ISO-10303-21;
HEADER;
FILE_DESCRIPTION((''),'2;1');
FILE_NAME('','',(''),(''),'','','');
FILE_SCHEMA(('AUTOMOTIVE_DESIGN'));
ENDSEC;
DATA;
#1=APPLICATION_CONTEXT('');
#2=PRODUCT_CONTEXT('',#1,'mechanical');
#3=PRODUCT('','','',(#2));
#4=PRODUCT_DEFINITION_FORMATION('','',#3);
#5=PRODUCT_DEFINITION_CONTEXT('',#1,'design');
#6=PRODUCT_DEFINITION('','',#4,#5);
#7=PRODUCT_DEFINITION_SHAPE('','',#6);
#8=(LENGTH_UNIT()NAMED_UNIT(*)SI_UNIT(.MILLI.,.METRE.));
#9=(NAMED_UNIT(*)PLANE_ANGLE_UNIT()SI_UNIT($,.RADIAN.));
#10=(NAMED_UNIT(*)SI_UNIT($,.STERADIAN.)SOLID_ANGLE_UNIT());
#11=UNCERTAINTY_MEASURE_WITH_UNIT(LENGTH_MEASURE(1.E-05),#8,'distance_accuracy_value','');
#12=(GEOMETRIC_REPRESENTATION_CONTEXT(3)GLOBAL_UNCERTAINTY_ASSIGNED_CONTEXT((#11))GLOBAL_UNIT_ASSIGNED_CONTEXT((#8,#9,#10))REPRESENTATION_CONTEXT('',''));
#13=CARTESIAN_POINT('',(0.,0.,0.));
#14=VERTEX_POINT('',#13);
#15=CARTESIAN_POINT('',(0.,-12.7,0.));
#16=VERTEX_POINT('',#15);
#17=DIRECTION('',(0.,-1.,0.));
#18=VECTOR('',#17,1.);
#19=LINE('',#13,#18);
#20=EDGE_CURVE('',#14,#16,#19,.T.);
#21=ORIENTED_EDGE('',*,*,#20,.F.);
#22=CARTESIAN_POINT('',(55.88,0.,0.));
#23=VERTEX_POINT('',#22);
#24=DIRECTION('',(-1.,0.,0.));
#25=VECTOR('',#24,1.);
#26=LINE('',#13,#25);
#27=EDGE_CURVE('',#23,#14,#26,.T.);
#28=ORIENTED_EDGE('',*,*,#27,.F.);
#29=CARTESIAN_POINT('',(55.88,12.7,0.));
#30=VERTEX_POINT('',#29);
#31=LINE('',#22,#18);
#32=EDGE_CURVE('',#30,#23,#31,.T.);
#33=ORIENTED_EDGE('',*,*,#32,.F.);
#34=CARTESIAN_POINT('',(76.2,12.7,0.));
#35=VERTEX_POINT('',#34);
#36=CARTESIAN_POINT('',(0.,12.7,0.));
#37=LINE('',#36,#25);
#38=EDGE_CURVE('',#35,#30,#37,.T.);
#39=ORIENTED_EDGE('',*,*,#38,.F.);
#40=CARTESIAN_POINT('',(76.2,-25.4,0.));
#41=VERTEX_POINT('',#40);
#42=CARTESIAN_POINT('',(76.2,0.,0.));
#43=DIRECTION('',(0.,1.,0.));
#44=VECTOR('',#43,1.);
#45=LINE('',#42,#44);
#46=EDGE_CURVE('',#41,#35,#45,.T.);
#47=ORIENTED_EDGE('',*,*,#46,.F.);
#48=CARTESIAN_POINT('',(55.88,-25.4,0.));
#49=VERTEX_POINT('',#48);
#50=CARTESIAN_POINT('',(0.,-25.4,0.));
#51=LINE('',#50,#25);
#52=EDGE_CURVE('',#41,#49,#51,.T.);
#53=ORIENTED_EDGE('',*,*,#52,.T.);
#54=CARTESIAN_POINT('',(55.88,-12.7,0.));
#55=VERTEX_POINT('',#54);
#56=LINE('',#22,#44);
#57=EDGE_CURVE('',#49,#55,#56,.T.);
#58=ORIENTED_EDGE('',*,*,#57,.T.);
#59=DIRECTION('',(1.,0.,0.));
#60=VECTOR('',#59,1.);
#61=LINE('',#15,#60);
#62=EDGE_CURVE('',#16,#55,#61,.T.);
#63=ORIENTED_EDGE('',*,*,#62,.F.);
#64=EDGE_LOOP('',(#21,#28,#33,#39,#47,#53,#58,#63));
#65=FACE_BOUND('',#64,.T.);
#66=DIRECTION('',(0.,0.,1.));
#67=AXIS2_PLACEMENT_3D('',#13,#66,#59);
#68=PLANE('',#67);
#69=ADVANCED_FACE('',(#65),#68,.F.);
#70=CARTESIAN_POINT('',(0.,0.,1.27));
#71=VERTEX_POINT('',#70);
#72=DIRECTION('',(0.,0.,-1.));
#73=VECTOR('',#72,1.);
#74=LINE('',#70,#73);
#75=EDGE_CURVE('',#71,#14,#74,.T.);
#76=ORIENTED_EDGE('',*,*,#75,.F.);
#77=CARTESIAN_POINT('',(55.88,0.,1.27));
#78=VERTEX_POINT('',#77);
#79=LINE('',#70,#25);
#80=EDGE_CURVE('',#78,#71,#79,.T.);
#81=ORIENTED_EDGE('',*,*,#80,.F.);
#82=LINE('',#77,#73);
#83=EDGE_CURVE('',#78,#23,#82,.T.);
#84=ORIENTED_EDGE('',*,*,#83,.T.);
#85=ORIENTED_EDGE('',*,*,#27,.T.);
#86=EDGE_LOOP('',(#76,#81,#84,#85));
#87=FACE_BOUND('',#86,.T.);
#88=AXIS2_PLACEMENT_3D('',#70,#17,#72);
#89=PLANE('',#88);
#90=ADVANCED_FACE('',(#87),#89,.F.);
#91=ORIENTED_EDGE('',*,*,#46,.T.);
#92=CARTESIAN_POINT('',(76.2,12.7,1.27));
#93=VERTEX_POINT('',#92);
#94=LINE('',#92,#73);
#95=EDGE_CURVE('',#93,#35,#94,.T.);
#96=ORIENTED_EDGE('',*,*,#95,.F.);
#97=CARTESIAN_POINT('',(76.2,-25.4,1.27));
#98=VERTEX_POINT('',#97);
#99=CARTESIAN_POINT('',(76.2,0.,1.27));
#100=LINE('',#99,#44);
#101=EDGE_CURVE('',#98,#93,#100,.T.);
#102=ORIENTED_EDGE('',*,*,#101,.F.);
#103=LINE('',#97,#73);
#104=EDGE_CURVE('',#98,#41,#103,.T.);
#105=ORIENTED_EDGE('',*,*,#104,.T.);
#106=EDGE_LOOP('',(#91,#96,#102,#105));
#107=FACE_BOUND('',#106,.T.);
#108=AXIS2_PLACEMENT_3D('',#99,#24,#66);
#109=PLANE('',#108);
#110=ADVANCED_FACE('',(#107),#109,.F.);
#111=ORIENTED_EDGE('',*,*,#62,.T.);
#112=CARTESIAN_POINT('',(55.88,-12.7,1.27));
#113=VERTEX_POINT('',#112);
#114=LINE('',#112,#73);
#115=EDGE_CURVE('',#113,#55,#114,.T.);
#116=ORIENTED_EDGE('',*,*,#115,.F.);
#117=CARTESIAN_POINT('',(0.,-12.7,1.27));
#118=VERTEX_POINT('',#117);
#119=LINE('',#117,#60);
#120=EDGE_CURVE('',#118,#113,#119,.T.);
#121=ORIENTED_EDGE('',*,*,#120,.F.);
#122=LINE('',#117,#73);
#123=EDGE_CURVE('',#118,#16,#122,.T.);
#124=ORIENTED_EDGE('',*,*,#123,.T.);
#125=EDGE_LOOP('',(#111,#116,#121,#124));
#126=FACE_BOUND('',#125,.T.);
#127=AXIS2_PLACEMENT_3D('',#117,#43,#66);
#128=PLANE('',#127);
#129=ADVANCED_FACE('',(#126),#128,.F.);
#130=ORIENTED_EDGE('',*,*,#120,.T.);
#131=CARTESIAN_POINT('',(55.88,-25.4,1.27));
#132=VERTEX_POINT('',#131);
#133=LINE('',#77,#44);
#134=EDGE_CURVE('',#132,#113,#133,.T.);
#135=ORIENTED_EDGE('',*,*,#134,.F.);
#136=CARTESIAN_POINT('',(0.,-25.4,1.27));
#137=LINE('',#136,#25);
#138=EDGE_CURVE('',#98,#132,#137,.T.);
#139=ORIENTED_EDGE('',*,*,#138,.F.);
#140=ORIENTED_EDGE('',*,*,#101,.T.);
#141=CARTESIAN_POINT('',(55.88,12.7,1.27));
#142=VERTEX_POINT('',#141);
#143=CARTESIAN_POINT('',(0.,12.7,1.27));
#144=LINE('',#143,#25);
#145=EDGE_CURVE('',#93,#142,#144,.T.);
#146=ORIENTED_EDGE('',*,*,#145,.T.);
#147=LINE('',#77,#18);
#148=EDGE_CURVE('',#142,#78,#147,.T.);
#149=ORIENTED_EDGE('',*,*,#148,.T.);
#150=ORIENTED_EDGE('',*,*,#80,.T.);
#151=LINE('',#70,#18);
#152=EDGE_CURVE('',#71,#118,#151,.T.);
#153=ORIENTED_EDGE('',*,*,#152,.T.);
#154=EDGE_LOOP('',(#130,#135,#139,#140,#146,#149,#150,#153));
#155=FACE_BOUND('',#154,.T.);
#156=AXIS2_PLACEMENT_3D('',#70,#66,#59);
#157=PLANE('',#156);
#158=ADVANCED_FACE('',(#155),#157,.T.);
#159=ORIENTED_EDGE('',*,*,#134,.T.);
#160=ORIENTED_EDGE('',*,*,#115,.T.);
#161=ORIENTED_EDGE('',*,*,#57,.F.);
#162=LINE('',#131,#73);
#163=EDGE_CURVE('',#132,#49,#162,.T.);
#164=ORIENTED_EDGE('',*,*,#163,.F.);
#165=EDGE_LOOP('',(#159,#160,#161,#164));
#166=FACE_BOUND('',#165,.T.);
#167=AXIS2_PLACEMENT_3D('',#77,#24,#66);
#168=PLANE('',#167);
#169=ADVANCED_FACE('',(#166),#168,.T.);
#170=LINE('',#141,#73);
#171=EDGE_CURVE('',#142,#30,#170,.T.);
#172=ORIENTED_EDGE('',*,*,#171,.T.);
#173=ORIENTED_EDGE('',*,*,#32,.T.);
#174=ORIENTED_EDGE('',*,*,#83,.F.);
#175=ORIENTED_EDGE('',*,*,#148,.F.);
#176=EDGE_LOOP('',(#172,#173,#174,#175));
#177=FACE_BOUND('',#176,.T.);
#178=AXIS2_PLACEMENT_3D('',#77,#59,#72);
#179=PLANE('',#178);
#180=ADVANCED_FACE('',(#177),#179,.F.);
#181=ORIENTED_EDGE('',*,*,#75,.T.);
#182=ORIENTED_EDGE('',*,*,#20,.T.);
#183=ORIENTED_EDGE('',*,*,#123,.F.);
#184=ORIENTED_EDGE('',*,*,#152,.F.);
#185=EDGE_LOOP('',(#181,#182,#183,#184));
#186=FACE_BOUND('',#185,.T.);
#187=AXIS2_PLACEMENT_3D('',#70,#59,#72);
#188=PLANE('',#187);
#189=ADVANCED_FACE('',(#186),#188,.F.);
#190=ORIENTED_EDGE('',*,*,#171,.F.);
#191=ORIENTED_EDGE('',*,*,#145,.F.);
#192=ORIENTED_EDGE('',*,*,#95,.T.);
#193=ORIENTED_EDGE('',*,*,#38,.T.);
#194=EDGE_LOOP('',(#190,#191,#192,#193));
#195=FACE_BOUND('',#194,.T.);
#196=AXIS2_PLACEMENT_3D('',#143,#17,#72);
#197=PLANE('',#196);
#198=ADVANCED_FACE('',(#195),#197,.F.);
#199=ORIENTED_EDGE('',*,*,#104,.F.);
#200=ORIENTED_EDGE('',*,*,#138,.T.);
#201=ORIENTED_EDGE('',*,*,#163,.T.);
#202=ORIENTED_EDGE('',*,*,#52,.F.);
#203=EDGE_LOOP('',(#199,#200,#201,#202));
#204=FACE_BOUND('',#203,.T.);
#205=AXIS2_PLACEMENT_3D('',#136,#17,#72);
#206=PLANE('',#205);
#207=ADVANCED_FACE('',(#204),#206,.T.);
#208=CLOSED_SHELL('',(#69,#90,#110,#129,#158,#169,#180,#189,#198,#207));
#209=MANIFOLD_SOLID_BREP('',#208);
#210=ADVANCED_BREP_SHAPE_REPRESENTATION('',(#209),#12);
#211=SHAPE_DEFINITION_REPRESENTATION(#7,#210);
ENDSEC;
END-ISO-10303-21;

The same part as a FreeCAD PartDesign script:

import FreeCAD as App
import Part
import Sketcher
from FreeCAD import Vector
Q = App.Units.Quantity


def add_polygon(sketch, points):
    """Adds a closed chain of lines whose ends are joined by coincident constraints."""
    first, n = sketch.GeometryCount, len(points)
    for a, b in zip(points, points[1:] + points[:1]):
        sketch.addGeometry(Part.LineSegment(App.Vector(*a, 0), App.Vector(*b, 0)), False)
    for i in range(n):
        sketch.addConstraint(Sketcher.Constraint("Coincident", first + i, 2, first + (i + 1) % n, 1))

doc = App.newDocument("Part")
body = doc.addObject("PartDesign::Body", "Body")

sketch1 = body.newObject("Sketcher::SketchObject", "Sketch")
sketch1.AttachmentSupport = (doc.getObject("XY_Plane"), [""])
sketch1.MapMode = "FlatFace"
add_polygon(sketch1, [(0, 0), (0, -12.7), (76.2, -12.7), (76.2, 0)])
sketch1.addConstraint([
    Sketcher.Constraint("Vertical", 0),
    Sketcher.Constraint("Horizontal", 1),
    Sketcher.Constraint("Vertical", 2),
    Sketcher.Constraint("Horizontal", 3),
    Sketcher.Constraint("Coincident", 3, 2, -1, 1),
    Sketcher.Constraint("DistanceX", 1, 1, 1, 2, Q("3 in")),
    Sketcher.Constraint("DistanceY", 0, 2, 0, 1, Q("0.5 in")),
])
pad1 = body.newObject("PartDesign::Pad", "Pad")
pad1.Profile = sketch1
pad1.Length = Q("0.05 in")

sketch2 = body.newObject("Sketcher::SketchObject", "Sketch001")
sketch2.AttachmentSupport = (doc.getObject("XY_Plane"), [""])
sketch2.MapMode = "FlatFace"
add_polygon(sketch2, [(76.2, 12.7), (76.2, 0), (55.88, 0), (55.88, 12.7)])
add_polygon(sketch2, [(76.2, -12.7), (76.2, -25.4), (55.88, -25.4), (55.88, -12.7)])
sketch2.addConstraint([
    Sketcher.Constraint("Vertical", 0),
    Sketcher.Constraint("Horizontal", 1),
    Sketcher.Constraint("Vertical", 2),
    Sketcher.Constraint("Horizontal", 3),
    Sketcher.Constraint("Vertical", 4),
    Sketcher.Constraint("Horizontal", 5),
    Sketcher.Constraint("Vertical", 6),
    Sketcher.Constraint("Horizontal", 7),
    Sketcher.Constraint("Symmetric", 2, 2, 6, 2, -1),
    Sketcher.Constraint("PointOnObject", 0, 2, -1),
    Sketcher.Constraint("Vertical", 3, 2, 4, 2),
    Sketcher.Constraint("Equal", 2, 4),
    Sketcher.Constraint("DistanceX", 1, 2, 1, 1, Q("0.8 in")),
    Sketcher.Constraint("DistanceY", 0, 2, 0, 1, Q("0.5 in")),
    Sketcher.Constraint("DistanceX", -1, 1, 0, 2, Q("3 in")),
])
pad2 = body.newObject("PartDesign::Pad", "Pad001")
pad2.Profile = sketch2
pad2.Length = Q("0.05 in")

doc.recompute()
